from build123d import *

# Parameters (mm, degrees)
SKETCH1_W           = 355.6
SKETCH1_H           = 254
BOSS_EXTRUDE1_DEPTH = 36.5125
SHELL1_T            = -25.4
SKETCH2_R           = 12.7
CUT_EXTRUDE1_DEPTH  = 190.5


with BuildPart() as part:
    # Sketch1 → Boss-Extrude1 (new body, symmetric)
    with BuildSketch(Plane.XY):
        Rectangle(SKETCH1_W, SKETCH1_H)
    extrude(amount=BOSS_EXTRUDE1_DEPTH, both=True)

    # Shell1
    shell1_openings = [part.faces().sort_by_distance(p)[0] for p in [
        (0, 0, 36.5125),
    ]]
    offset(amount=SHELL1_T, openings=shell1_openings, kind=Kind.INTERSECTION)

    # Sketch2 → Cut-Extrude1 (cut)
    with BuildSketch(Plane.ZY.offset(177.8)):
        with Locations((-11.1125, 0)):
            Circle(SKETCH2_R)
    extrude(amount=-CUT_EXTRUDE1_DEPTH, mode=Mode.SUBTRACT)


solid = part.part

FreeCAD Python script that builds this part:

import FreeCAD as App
import Part
import Sketcher
from FreeCAD import Vector
Q = App.Units.Quantity


def faces_at(feature, points):
    """Names of the faces that lie closest to the given points."""
    faces = feature.Shape.Faces
    near = lambda p: min(range(len(faces)), key=lambda i: faces[i].distToShape(Part.Vertex(*p))[0])
    return sorted({f"Face{near(p) + 1}" for p in points})


def add_polygon(sketch, points):
    """Adds a closed chain of lines whose ends are joined by coincident constraints."""
    first, n = sketch.GeometryCount, len(points)
    for a, b in zip(points, points[1:] + points[:1]):
        sketch.addGeometry(Part.LineSegment(App.Vector(*a, 0), App.Vector(*b, 0)), False)
    for i in range(n):
        sketch.addConstraint(Sketcher.Constraint("Coincident", first + i, 2, first + (i + 1) % n, 1))

doc = App.newDocument("Part")
body = doc.addObject("PartDesign::Body", "Body")

# Sketch on XY plane
sketch1 = body.newObject("Sketcher::SketchObject", "Sketch")
sketch1.AttachmentSupport = (doc.getObject("XY_Plane"), [""])
sketch1.MapMode = "FlatFace"
add_polygon(sketch1, [(-178, 127), (-178, -127), (178, -127), (178, 127)])  # lines 0-3
sketch1.addConstraint(Sketcher.Constraint("Vertical", 0))
sketch1.addConstraint(Sketcher.Constraint("Horizontal", 1))
sketch1.addConstraint(Sketcher.Constraint("Vertical", 2))
sketch1.addConstraint(Sketcher.Constraint("Horizontal", 3))
sketch1.addConstraint(Sketcher.Constraint("Symmetric", 0, 2, 2, 2, -1, 1))
sketch1.addConstraint(Sketcher.Constraint("DistanceX", 1, 1, 1, 2, Q("14 in")))
sketch1.addConstraint(Sketcher.Constraint("DistanceY", 0, 2, 0, 1, Q("10 in")))
pad1 = body.newObject("PartDesign::Pad", "Pad")
pad1.Profile = sketch1
pad1.Length = Q("2.875 in")
pad1.Midplane = True
doc.recompute()

thickness = body.newObject("PartDesign::Thickness", "Thickness")
thickness.Base = (pad1, faces_at(pad1, [(0, 0, 36.513)]))
thickness.Value = Q("1 in")
thickness.Reversed = True
thickness.Join = "Intersection"

# Sketch on YZ plane
sketch2 = body.newObject("Sketcher::SketchObject", "Sketch001")
sketch2.AttachmentSupport = (doc.getObject("YZ_Plane"), [""])
sketch2.MapMode = "FlatFace"
sketch2.AttachmentOffset = App.Placement(Vector(0, 0, -7 * 25.4), App.Rotation())
sketch2.addGeometry(Part.Circle(Vector(0, -11, 0), Vector(0, 0, 1), 13), False)
sketch2.addConstraint(Sketcher.Constraint("PointOnObject", 0, 3, -2))
sketch2.addConstraint(Sketcher.Constraint("Diameter", 0, Q("1 in")))
sketch2.addConstraint(Sketcher.Constraint("DistanceY", 0, 3, -1, 1, Q("0.4375 in")))
pocket1 = body.newObject("PartDesign::Pocket", "Pocket")
pocket1.Profile = sketch2
pocket1.Length = Q("7.5 in")
pocket1.Reversed = True

doc.recompute()
